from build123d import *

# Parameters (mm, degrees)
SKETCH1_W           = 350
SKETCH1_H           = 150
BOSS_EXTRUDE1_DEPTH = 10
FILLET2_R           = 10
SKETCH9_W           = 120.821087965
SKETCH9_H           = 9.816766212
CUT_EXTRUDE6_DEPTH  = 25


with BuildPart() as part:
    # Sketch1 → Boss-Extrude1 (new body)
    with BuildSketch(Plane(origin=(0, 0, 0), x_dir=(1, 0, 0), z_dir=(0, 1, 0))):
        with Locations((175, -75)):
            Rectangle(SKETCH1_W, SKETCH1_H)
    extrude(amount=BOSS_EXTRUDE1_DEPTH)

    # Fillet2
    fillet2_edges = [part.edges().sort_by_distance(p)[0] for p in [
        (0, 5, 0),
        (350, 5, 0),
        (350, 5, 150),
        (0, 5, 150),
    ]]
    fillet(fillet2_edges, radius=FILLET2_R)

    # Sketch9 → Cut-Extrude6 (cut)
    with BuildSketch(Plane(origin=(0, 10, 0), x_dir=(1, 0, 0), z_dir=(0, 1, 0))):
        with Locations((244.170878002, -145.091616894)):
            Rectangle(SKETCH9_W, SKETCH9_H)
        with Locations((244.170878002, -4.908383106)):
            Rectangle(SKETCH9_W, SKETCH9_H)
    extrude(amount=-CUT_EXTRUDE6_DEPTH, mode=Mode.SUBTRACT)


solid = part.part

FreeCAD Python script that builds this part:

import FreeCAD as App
import Part
import Sketcher

V = App.Vector


def edges_at(feature, points):
    """Names of the edges that pass closest to the given points."""
    edges = feature.Shape.Edges
    near = lambda p: min(range(len(edges)), key=lambda i: edges[i].distToShape(Part.Vertex(*p))[0])
    return sorted({f"Edge{near(p) + 1}" for p in points})


def add_polygon(sketch, points):
    """Adds a closed chain of lines whose ends are joined by coincident constraints."""
    first, n = sketch.GeometryCount, len(points)
    for a, b in zip(points, points[1:] + points[:1]):
        sketch.addGeometry(Part.LineSegment(App.Vector(*a, 0), App.Vector(*b, 0)), False)
    for i in range(n):
        sketch.addConstraint(Sketcher.Constraint("Coincident", first + i, 2, first + (i + 1) % n, 1))

doc = App.newDocument("Part")
body = doc.addObject("PartDesign::Body", "Body")

sketch1 = doc.addObject("Sketcher::SketchObject", "Sketch")
body.addObject(sketch1)
sketch1.AttachmentSupport = (doc.XZ_Plane, [""])
sketch1.MapMode = "FlatFace"
add_polygon(sketch1, [(0, 0), (0, 150), (350, 150), (350, 0)])
sketch1.addConstraint([
    Sketcher.Constraint("Vertical", 0),
    Sketcher.Constraint("Horizontal", 1),
    Sketcher.Constraint("Vertical", 2),
    Sketcher.Constraint("Horizontal", 3),
    Sketcher.Constraint("Coincident", 3, 2, -1, 1),
    Sketcher.Constraint("DistanceX", 1, 1, 1, 2, 350.0),
    Sketcher.Constraint("DistanceY", 0, 1, 0, 2, 150.0),
])
pad1 = doc.addObject("PartDesign::Pad", "Pad")
body.addObject(pad1)
pad1.Profile = sketch1
pad1.Length = 10
pad1.Reversed = True
doc.recompute()

fillet = doc.addObject("PartDesign::Fillet", "Fillet")
body.addObject(fillet)
fillet.Base = (pad1, edges_at(pad1, [
    (0, 5, 0),
    (350, 5, 0),
    (350, 5, 150),
    (0, 5, 150),
]))
fillet.Radius = 10

sketch2 = doc.addObject("Sketcher::SketchObject", "Sketch001")
body.addObject(sketch2)
sketch2.AttachmentSupport = (doc.XZ_Plane, [""])
sketch2.MapMode = "FlatFace"
sketch2.AttachmentOffset = App.Placement(V(0, 0, -10), App.Rotation())
add_polygon(sketch2, [(184, 140), (184, 150), (305, 150), (305, 140)])
add_polygon(sketch2, [(184, 0), (184, 10), (305, 10), (305, 0)])
sketch2.addConstraint([
    Sketcher.Constraint("Vertical", 0),
    Sketcher.Constraint("Horizontal", 1),
    Sketcher.Constraint("Vertical", 2),
    Sketcher.Constraint("Horizontal", 3),
    Sketcher.Constraint("Vertical", 4),
    Sketcher.Constraint("Horizontal", 5),
    Sketcher.Constraint("Vertical", 6),
    Sketcher.Constraint("Horizontal", 7),
    Sketcher.Constraint("PointOnObject", 6, 2, -1),
    Sketcher.Constraint("Vertical", 3, 2, 4, 2),
    Sketcher.Constraint("Vertical", 2, 2, 5, 2),
    Sketcher.Constraint("Equal", 2, 4),
    Sketcher.Constraint("DistanceY", -1, 1, 0, 2, 150.0),
    Sketcher.Constraint("DistanceX", 1, 1, 1, 2, 120.821088),
    Sketcher.Constraint("DistanceY", 0, 1, 0, 2, 9.816766),
    Sketcher.Constraint("DistanceX", -1, 1, 1, 2, 304.581422),
])
pocket1 = doc.addObject("PartDesign::Pocket", "Pocket")
body.addObject(pocket1)
pocket1.Profile = sketch2
pocket1.Length = 25
pocket1.Reversed = True

doc.recompute()
